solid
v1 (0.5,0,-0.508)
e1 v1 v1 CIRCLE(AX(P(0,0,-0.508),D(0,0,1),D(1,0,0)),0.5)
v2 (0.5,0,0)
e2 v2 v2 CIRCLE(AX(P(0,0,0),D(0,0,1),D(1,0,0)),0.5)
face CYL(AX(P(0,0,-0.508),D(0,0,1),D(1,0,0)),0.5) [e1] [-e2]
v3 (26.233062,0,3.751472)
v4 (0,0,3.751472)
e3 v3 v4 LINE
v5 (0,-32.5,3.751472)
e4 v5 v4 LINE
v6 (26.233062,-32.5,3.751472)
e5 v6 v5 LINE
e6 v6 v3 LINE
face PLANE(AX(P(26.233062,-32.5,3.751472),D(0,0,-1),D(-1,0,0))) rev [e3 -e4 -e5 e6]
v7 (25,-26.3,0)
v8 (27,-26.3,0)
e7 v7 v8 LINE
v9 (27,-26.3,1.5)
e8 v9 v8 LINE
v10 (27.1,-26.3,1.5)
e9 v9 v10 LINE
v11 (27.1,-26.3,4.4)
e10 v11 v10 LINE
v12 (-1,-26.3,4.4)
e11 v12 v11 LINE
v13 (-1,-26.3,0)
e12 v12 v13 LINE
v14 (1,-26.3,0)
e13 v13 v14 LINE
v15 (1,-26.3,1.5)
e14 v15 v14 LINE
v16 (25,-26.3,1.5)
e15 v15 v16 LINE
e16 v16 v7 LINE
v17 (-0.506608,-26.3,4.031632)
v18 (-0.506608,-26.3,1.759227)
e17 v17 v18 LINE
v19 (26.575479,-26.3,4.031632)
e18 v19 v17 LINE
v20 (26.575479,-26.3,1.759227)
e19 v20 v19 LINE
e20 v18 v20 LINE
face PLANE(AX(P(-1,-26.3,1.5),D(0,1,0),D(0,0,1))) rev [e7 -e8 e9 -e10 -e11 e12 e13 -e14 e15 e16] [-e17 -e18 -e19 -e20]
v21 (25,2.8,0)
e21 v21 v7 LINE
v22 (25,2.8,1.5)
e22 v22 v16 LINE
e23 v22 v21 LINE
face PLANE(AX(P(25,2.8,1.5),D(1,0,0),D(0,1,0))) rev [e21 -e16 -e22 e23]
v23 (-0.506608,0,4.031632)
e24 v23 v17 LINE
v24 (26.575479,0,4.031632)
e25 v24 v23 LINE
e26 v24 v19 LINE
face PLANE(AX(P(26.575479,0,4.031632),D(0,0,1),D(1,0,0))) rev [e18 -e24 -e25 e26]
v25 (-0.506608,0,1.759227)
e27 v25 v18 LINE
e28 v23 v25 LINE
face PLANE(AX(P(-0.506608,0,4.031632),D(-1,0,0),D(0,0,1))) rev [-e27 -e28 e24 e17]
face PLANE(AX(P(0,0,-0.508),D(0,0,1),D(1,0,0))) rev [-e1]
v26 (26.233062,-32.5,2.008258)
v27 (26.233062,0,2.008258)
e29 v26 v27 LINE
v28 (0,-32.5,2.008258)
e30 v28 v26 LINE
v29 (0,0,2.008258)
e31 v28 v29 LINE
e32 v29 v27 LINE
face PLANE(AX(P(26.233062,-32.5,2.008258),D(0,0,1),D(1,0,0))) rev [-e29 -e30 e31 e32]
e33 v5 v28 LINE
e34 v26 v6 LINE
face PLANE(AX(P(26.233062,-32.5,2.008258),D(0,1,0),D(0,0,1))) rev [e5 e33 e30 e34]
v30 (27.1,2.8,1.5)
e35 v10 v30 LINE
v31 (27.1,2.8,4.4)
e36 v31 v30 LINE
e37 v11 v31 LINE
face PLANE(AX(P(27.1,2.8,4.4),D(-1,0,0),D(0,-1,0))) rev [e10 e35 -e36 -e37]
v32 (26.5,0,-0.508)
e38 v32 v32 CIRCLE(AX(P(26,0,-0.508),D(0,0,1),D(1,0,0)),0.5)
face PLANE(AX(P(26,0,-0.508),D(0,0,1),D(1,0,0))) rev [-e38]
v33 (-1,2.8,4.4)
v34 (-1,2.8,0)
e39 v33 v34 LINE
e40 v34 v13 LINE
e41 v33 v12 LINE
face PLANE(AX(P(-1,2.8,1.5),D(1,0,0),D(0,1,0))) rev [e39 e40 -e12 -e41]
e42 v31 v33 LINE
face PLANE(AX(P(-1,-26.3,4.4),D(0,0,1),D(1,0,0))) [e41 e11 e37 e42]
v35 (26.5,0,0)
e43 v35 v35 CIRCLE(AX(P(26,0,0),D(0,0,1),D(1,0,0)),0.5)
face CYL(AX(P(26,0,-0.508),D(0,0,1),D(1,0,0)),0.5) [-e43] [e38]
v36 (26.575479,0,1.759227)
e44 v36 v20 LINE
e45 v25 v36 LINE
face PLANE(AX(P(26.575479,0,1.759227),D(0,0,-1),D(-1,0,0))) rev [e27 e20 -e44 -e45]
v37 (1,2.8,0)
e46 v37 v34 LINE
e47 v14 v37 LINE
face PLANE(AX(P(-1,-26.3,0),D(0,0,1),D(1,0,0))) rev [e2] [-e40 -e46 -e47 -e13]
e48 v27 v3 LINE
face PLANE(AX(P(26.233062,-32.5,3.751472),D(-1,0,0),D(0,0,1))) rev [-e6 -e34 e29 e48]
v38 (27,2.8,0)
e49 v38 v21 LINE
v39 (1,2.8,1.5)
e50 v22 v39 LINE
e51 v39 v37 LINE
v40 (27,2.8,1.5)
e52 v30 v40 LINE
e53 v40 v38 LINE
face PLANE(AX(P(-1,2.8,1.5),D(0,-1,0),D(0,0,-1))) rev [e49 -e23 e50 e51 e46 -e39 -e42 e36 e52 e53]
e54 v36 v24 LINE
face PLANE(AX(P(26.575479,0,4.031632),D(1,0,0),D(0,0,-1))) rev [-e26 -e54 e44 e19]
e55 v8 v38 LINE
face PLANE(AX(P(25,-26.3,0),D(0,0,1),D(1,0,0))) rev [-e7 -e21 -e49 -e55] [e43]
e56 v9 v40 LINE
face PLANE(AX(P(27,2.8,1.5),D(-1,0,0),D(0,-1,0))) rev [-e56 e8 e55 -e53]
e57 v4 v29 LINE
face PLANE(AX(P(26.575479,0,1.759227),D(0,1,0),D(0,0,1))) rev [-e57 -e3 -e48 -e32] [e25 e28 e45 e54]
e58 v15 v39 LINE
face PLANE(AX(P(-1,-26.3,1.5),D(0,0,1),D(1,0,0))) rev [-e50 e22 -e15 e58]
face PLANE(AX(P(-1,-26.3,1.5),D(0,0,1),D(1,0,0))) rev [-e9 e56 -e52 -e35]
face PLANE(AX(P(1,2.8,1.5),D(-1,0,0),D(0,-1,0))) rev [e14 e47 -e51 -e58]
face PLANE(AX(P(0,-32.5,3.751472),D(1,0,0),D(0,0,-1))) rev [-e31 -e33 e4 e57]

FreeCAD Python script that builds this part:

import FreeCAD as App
import Part
import Sketcher

V = App.Vector


def add_polygon(sketch, points):
    """Adds a closed chain of lines whose ends are joined by coincident constraints."""
    first, n = sketch.GeometryCount, len(points)
    for a, b in zip(points, points[1:] + points[:1]):
        sketch.addGeometry(Part.LineSegment(App.Vector(*a, 0), App.Vector(*b, 0)), False)
    for i in range(n):
        sketch.addConstraint(Sketcher.Constraint("Coincident", first + i, 2, first + (i + 1) % n, 1))

doc = App.newDocument("Part")
body = doc.addObject("PartDesign::Body", "Body")

# Sketch on XY plane
sketch1 = body.newObject("Sketcher::SketchObject", "Sketch")
sketch1.AttachmentSupport = (doc.getObject("XY_Plane"), [""])
sketch1.MapMode = "FlatFace"
sketch1.addGeometry(Part.Circle(V(0, 0, 0), V(0, 0, 1), 0.5), False)
sketch1.addConstraint([
    Sketcher.Constraint("Coincident", 0, 3, -1, 1),
    Sketcher.Constraint("Diameter", 0, 1.0),
])
pad1 = body.newObject("PartDesign::Pad", "Pad")
pad1.Profile = sketch1
pad1.Length = 0.508
pad1.Reversed = True
body2 = doc.addObject("PartDesign::Body", "Body001")

# Sketch on XY plane
sketch2 = body2.newObject("Sketcher::SketchObject", "Sketch001")
sketch2.AttachmentSupport = (doc.getObject("XY_Plane001"), [""])
sketch2.MapMode = "FlatFace"
sketch2.addGeometry(Part.Circle(V(26, 0, 0), V(0, 0, 1), 0.5), False)
sketch2.addConstraint([
    Sketcher.Constraint("PointOnObject", 0, 3, -1),
    Sketcher.Constraint("Diameter", 0, 1.0),
    Sketcher.Constraint("DistanceX", -1, 1, 0, 3, 26.0),
])
pad2 = body2.newObject("PartDesign::Pad", "Pad001")
pad2.Profile = sketch2
pad2.Length = 0.508
pad2.Reversed = True
body.AllowCompound = True
doc.recompute()

boolean = body.newObject("PartDesign::Boolean", "Boolean")
boolean.Type = "Fuse"
boolean.addObjects([body2])

# Sketch on XY plane
sketch3 = body.newObject("Sketcher::SketchObject", "Sketch002")
sketch3.AttachmentSupport = (doc.getObject("XY_Plane"), [""])
sketch3.MapMode = "FlatFace"
add_polygon(sketch3, [(-1, 2.8), (-1, -26.3), (1, -26.3), (1, 2.8)])  # lines 0-3
add_polygon(sketch3, [(25, 2.8), (25, -26.3), (27, -26.3), (27, 2.8)])  # lines 4-7
sketch3.addConstraint([
    Sketcher.Constraint("Vertical", 0),
    Sketcher.Constraint("Horizontal", 1),
    Sketcher.Constraint("Vertical", 2),
    Sketcher.Constraint("Horizontal", 3),
    Sketcher.Constraint("Vertical", 4),
    Sketcher.Constraint("Horizontal", 5),
    Sketcher.Constraint("Vertical", 6),
    Sketcher.Constraint("Horizontal", 7),
    Sketcher.Constraint("Horizontal", 1, 2, 4, 2),
    Sketcher.Constraint("Horizontal", 3, 2, 6, 2),
    Sketcher.Constraint("Equal", 3, 5),
    Sketcher.Constraint("DistanceX", 1, 1, 1, 2, 2.0),
    Sketcher.Constraint("DistanceY", 0, 2, 0, 1, 29.1),
    Sketcher.Constraint("DistanceX", 0, 2, -1, 1, 1.0),
    Sketcher.Constraint("DistanceX", -1, 1, 4, 2, 25.0),
    Sketcher.Constraint("DistanceY", 0, 2, -1, 1, 26.3),
])
pad3 = body.newObject("PartDesign::Pad", "Pad002")
pad3.Profile = sketch3
pad3.Length = 1.5

# Sketch on XY plane
sketch4 = body.newObject("Sketcher::SketchObject", "Sketch003")
sketch4.AttachmentSupport = (doc.getObject("XY_Plane"), [""])
sketch4.MapMode = "FlatFace"
sketch4.AttachmentOffset = App.Placement(V(0, 0, 1.5), App.Rotation())
add_polygon(sketch4, [(-1, 3), (-1, -26), (27, -26), (27, 3)])  # lines 0-3
sketch4.addConstraint([
    Sketcher.Constraint("Vertical", 0),
    Sketcher.Constraint("Horizontal", 1),
    Sketcher.Constraint("Vertical", 2),
    Sketcher.Constraint("Horizontal", 3),
    Sketcher.Constraint("DistanceX", 1, 1, 1, 2, 28.1),
    Sketcher.Constraint("DistanceY", 0, 2, 0, 1, 29.1),
    Sketcher.Constraint("DistanceX", 0, 2, -1, 1, 1.0),
    Sketcher.Constraint("DistanceY", 0, 2, -1, 1, 26.3),
])
pad4 = body.newObject("PartDesign::Pad", "Pad003")
pad4.Profile = sketch4
pad4.Length = 2.9

# Sketch on XZ plane
sketch5 = body.newObject("Sketcher::SketchObject", "Sketch004")
sketch5.AttachmentSupport = (doc.getObject("XZ_Plane"), [""])
sketch5.MapMode = "FlatFace"
sketch5.AttachmentOffset = App.Placement(V(0, 0, 26.3), App.Rotation())
add_polygon(sketch5, [(-0.5, 4), (-0.5, 1.8), (26.6, 1.8), (26.6, 4)])  # lines 0-3
sketch5.addConstraint([
    Sketcher.Constraint("Vertical", 0),
    Sketcher.Constraint("Horizontal", 1),
    Sketcher.Constraint("Vertical", 2),
    Sketcher.Constraint("Horizontal", 3),
    Sketcher.Constraint("DistanceX", 1, 1, 1, 2, 27.082087),
    Sketcher.Constraint("DistanceY", 0, 2, 0, 1, 2.272405),
    Sketcher.Constraint("DistanceX", -1, 1, 1, 2, 26.575479),
    Sketcher.Constraint("DistanceY", -1, 1, 2, 2, 4.031632),
])
pocket1 = body.newObject("PartDesign::Pocket", "Pocket")
pocket1.Profile = sketch5
pocket1.Length = 26.3

# Sketch on XZ plane
sketch6 = body.newObject("Sketcher::SketchObject", "Sketch005")
sketch6.AttachmentSupport = (doc.getObject("XZ_Plane"), [""])
sketch6.MapMode = "FlatFace"
add_polygon(sketch6, [(0, 3.8), (0, 2), (26.2, 2), (26.2, 3.8)])  # lines 0-3
sketch6.addConstraint([
    Sketcher.Constraint("Vertical", 0),
    Sketcher.Constraint("Horizontal", 1),
    Sketcher.Constraint("Vertical", 2),
    Sketcher.Constraint("Horizontal", 3),
    Sketcher.Constraint("PointOnObject", 0, 2, -2),
    Sketcher.Constraint("DistanceX", 1, 1, 1, 2, 26.233062),
    Sketcher.Constraint("DistanceY", 0, 2, 0, 1, 1.743215),
    Sketcher.Constraint("DistanceY", -1, 1, 0, 2, 2.008258),
])
pad5 = body.newObject("PartDesign::Pad", "Pad004")
pad5.Profile = sketch6
pad5.Length = 32.5

doc.recompute()
